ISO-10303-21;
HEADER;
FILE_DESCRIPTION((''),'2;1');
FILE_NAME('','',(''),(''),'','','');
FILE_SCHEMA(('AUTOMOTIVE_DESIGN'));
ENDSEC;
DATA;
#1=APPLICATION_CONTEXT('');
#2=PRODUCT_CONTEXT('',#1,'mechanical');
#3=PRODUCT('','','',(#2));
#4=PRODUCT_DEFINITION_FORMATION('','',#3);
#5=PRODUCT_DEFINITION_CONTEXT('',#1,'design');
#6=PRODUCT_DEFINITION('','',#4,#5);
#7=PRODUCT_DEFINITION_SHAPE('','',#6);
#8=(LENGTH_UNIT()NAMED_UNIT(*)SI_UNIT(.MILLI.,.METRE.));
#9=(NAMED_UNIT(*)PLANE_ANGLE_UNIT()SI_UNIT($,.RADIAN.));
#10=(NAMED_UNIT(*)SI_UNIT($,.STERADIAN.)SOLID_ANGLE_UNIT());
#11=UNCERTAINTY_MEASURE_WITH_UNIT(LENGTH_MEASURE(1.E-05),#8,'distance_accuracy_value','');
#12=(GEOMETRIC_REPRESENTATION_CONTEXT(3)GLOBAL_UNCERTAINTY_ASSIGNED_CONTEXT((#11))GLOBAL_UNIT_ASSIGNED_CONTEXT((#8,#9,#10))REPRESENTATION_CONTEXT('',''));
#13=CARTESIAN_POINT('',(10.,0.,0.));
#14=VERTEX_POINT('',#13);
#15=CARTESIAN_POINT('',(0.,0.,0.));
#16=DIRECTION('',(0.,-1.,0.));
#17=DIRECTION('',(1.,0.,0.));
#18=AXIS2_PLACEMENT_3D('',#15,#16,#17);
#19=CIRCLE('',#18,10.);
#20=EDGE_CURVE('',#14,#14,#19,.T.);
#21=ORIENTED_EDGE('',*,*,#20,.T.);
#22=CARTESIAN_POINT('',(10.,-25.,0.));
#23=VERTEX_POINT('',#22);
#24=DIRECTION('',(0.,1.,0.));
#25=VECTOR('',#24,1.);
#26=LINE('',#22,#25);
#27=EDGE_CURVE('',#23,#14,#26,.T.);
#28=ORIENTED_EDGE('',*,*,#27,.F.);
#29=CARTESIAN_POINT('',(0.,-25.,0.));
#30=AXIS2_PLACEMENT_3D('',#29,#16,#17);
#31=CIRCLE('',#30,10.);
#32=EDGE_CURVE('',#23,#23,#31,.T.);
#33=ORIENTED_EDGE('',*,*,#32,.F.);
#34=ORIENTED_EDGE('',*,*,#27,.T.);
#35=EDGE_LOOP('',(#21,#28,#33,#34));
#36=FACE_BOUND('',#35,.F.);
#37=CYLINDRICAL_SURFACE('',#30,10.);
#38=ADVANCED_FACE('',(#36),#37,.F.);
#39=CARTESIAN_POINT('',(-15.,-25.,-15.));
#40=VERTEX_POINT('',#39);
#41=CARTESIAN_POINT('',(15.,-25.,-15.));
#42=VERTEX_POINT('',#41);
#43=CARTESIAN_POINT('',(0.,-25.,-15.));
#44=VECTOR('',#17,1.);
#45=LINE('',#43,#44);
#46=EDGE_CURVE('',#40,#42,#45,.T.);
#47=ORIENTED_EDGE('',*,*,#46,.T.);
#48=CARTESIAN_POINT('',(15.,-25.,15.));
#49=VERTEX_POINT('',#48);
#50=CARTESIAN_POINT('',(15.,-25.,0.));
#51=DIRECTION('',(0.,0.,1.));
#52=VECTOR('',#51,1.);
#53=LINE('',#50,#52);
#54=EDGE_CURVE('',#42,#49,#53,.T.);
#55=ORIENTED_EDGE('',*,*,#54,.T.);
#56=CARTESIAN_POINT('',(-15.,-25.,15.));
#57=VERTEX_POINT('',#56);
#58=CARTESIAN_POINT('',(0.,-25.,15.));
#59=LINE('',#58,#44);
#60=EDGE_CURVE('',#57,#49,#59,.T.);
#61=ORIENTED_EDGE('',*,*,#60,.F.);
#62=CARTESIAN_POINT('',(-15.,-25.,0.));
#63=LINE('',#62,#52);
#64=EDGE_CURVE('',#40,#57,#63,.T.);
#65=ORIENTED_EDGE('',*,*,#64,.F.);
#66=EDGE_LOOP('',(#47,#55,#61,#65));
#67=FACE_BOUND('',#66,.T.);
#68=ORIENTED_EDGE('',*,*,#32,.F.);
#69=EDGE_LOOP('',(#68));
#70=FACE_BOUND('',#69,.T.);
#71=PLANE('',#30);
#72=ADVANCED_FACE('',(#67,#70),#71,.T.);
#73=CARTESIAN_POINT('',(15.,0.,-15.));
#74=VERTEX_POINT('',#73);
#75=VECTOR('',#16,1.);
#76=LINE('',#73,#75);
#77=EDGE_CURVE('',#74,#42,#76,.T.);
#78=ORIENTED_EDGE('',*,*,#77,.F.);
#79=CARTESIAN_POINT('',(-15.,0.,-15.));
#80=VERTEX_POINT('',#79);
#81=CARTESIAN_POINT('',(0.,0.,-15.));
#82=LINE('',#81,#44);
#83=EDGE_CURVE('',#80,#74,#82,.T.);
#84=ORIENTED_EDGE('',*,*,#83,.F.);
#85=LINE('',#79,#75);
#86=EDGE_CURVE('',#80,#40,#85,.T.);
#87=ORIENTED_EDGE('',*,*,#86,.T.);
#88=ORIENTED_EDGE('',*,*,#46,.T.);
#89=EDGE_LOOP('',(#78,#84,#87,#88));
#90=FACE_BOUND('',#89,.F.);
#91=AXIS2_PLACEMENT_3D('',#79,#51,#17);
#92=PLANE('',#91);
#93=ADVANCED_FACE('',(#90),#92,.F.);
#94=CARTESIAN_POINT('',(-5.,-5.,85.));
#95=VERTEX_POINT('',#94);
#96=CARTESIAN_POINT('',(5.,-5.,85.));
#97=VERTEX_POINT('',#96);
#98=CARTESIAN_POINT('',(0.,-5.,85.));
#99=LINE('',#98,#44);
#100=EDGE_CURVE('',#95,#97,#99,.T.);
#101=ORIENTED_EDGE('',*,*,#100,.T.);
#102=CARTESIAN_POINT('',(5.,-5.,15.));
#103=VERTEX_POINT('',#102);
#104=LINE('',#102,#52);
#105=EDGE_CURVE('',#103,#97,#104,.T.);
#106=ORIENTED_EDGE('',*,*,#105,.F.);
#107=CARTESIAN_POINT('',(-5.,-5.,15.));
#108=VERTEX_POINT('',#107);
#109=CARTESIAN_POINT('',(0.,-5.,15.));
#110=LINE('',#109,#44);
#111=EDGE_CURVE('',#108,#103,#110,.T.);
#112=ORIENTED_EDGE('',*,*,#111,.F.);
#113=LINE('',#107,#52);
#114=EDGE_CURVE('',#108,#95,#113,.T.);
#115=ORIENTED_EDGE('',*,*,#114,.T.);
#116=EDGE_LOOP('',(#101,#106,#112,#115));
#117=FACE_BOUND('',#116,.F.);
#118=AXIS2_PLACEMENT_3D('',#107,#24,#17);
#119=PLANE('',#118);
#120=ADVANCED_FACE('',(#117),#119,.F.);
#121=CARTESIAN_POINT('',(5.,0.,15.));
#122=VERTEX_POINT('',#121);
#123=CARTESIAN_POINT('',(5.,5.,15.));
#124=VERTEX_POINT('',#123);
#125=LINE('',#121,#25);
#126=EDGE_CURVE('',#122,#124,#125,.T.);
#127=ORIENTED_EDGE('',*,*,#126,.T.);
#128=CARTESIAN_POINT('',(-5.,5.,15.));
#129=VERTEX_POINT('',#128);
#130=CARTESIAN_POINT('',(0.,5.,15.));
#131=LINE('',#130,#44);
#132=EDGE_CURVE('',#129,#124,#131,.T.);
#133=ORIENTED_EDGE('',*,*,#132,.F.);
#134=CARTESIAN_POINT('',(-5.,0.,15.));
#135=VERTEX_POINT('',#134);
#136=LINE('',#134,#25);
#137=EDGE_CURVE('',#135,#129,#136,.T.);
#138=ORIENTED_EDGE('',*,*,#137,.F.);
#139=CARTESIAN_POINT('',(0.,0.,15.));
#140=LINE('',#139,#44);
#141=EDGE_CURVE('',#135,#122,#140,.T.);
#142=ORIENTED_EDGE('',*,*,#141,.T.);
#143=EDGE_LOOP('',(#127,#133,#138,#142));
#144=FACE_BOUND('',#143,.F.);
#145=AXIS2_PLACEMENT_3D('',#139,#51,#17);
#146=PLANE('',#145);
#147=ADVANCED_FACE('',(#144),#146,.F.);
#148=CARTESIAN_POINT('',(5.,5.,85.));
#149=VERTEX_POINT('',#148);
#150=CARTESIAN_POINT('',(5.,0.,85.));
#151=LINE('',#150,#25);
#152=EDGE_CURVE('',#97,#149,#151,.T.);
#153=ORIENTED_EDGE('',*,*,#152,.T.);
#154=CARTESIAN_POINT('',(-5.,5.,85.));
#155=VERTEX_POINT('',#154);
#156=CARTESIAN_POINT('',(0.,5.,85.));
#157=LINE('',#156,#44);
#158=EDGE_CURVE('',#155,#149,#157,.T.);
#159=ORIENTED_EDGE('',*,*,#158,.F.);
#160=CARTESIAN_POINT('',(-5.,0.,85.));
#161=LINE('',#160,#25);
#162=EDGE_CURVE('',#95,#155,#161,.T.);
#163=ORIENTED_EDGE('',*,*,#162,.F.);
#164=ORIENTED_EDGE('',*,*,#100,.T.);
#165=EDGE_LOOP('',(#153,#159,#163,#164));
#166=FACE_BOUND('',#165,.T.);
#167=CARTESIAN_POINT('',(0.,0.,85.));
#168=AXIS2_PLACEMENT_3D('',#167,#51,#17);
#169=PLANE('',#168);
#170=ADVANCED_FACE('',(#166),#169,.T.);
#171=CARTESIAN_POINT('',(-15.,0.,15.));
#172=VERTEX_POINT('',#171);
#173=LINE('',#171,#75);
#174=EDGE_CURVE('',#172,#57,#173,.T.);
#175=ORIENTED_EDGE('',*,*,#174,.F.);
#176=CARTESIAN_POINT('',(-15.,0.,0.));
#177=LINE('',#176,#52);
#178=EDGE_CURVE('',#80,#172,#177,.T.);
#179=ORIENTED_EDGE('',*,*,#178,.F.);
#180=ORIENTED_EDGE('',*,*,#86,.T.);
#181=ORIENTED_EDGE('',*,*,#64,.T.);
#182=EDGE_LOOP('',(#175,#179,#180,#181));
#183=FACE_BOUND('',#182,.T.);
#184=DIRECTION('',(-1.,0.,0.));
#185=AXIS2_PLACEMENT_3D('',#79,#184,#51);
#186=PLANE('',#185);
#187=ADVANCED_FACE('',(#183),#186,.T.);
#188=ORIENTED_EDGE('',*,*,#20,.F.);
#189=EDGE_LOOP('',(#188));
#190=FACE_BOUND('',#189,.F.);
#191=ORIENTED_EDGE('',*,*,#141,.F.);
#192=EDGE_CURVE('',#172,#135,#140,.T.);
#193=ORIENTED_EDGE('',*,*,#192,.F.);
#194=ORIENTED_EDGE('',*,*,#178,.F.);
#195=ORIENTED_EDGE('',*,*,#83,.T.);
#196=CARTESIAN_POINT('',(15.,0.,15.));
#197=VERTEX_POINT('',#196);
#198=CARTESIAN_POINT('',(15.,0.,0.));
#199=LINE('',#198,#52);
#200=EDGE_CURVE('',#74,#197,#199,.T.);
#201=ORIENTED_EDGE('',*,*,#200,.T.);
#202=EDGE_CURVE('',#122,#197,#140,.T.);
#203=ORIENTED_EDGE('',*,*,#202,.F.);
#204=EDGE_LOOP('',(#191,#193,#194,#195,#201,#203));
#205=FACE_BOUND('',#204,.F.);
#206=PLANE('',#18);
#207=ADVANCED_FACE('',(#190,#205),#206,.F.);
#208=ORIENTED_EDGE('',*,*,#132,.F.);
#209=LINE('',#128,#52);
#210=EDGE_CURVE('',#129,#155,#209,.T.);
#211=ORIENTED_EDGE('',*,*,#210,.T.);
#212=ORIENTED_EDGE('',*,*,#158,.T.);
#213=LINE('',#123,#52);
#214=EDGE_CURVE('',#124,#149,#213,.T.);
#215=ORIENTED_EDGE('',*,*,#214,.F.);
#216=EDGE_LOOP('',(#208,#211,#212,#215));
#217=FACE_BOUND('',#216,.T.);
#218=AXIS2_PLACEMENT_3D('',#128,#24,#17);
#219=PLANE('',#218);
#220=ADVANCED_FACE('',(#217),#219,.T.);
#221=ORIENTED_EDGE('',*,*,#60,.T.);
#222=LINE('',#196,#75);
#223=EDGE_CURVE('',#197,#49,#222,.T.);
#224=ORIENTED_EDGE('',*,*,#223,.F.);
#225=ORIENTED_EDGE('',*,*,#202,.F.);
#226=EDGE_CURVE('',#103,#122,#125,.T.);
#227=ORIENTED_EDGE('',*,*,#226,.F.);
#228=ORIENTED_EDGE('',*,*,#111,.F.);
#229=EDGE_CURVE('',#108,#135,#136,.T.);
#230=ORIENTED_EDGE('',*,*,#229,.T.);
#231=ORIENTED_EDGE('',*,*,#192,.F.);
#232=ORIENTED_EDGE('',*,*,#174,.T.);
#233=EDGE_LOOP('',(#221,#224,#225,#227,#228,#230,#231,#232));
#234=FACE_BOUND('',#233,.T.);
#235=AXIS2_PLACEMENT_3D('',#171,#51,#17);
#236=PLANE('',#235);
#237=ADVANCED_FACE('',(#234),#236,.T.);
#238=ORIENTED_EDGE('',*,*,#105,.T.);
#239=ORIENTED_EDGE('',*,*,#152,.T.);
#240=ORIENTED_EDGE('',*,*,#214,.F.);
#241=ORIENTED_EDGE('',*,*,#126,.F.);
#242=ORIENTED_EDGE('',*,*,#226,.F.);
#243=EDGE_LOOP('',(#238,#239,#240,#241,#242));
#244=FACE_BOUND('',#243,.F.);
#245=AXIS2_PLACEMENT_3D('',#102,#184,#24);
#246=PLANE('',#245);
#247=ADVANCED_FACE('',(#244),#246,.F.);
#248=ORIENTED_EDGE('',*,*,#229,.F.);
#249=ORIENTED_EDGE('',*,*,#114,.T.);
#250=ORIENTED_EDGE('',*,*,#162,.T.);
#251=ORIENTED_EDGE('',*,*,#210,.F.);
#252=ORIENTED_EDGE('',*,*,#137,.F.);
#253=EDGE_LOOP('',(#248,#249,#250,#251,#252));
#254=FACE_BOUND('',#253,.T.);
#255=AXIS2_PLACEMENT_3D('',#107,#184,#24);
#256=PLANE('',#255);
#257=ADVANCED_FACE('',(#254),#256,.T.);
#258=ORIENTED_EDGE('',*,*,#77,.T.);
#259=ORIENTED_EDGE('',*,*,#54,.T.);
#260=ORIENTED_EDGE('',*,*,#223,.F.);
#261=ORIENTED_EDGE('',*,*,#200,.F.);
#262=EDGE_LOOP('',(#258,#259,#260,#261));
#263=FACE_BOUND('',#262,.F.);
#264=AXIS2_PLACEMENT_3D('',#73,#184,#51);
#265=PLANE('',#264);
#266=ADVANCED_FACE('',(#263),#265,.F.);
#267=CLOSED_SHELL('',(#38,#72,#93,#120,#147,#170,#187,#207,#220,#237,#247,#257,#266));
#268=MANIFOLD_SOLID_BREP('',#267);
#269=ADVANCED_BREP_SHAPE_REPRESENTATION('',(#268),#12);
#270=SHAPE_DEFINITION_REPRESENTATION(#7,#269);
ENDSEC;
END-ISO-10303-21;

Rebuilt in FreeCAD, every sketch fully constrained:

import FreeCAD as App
import Part
import Sketcher


def add_polygon(sketch, points):
    """Adds a closed chain of lines whose ends are joined by coincident constraints."""
    first, n = sketch.GeometryCount, len(points)
    for a, b in zip(points, points[1:] + points[:1]):
        sketch.addGeometry(Part.LineSegment(App.Vector(*a, 0), App.Vector(*b, 0)), False)
    for i in range(n):
        sketch.addConstraint(Sketcher.Constraint("Coincident", first + i, 2, first + (i + 1) % n, 1))

doc = App.newDocument("Part")
body = doc.addObject("PartDesign::Body", "Body")

sketch1 = body.newObject("Sketcher::SketchObject", "Sketch")
sketch1.AttachmentSupport = (doc.getObject("XZ_Plane"), [""])
sketch1.MapMode = "FlatFace"
add_polygon(sketch1, [(-15, 15), (-15, -15), (15, -15), (15, 15)])
sketch1.addConstraint([
    Sketcher.Constraint("Vertical", 0),
    Sketcher.Constraint("Horizontal", 1),
    Sketcher.Constraint("Vertical", 2),
    Sketcher.Constraint("Horizontal", 3),
    Sketcher.Constraint("Symmetric", 0, 2, 2, 2, -1, 1),
    Sketcher.Constraint("Equal", 3, 0),
    Sketcher.Constraint("DistanceX", 1, 1, 1, 2, 30.0),
])
pad1 = body.newObject("PartDesign::Pad", "Pad")
pad1.Profile = sketch1
pad1.Length = 25

sketch2 = body.newObject("Sketcher::SketchObject", "Sketch001")
sketch2.AttachmentSupport = (doc.getObject("XZ_Plane"), [""])
sketch2.MapMode = "FlatFace"
sketch2.AttachmentOffset = App.Placement(App.Vector(0, 0, 25), App.Rotation())
sketch2.addGeometry(Part.Circle(App.Vector(0, 0, 0), App.Vector(0, 0, 1), 10), False)
sketch2.addConstraint([
    Sketcher.Constraint("Coincident", 0, 3, -1, 1),
    Sketcher.Constraint("Diameter", 0, 20.0),
])
pocket1 = body.newObject("PartDesign::Pocket", "Pocket")
pocket1.Profile = sketch2
pocket1.Length = 25

sketch3 = body.newObject("Sketcher::SketchObject", "Sketch002")
sketch3.AttachmentSupport = (doc.getObject("XY_Plane"), [""])
sketch3.MapMode = "FlatFace"
sketch3.AttachmentOffset = App.Placement(App.Vector(0, 0, 15), App.Rotation())
add_polygon(sketch3, [(-5, 5), (-5, -5), (5, -5), (5, 5)])
sketch3.addConstraint([
    Sketcher.Constraint("Vertical", 0),
    Sketcher.Constraint("Horizontal", 1),
    Sketcher.Constraint("Vertical", 2),
    Sketcher.Constraint("Horizontal", 3),
    Sketcher.Constraint("Symmetric", 0, 2, 2, 2, -1, 1),
    Sketcher.Constraint("Equal", 3, 0),
    Sketcher.Constraint("DistanceX", 1, 1, 1, 2, 10.0),
])
pad2 = body.newObject("PartDesign::Pad", "Pad001")
pad2.Profile = sketch3
pad2.Length = 70

doc.recompute()
